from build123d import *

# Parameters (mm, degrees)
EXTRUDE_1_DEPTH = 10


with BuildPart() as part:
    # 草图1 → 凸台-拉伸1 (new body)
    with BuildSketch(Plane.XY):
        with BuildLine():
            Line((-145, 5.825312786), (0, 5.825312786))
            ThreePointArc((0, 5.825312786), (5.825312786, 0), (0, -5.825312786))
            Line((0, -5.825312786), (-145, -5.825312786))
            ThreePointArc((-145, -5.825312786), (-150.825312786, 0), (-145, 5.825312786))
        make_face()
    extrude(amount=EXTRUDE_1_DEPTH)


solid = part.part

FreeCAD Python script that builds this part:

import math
import FreeCAD as App
import Part
import Sketcher

V = App.Vector
Q = App.Units.Quantity

doc = App.newDocument("Part")
body = doc.addObject("PartDesign::Body", "Body")

# Sketch on XY plane
sketch1 = body.newObject("Sketcher::SketchObject", "Sketch")
sketch1.AttachmentSupport = (doc.getObject("XY_Plane"), [""])
sketch1.MapMode = "FlatFace"
sketch1.addGeometry(Part.LineSegment(V(0, 6, 0), V(-145, 6, 0)), False)
sketch1.addGeometry(Part.ArcOfCircle(Part.Circle(V(-145, 0, 0), V(0, 0, 1), 6), math.radians(90), math.radians(270)), False)
sketch1.addGeometry(Part.LineSegment(V(-145, -6, 0), V(0, -6, 0)), False)
sketch1.addGeometry(Part.ArcOfCircle(Part.Circle(V(0, 0, 0), V(0, 0, 1), 6), math.radians(-90), math.radians(90)), False)
sketch1.addConstraint(Sketcher.Constraint("Tangent", 0, 2, 1, 1))
sketch1.addConstraint(Sketcher.Constraint("Tangent", 1, 2, 2, 1))
sketch1.addConstraint(Sketcher.Constraint("Tangent", 2, 2, 3, 1))
sketch1.addConstraint(Sketcher.Constraint("Tangent", 3, 2, 0, 1))
sketch1.addConstraint(Sketcher.Constraint("Horizontal", 0))
sketch1.addConstraint(Sketcher.Constraint("Horizontal", 2))
sketch1.addConstraint(Sketcher.Constraint("Coincident", 3, 3, -1, 1))
sketch1.addConstraint(Sketcher.Constraint("DistanceX", 0, 2, 0, 1, Q("145 mm")))
sketch1.addConstraint(Sketcher.Constraint("Radius", 1, Q("5.825313 mm")))
pad1 = body.newObject("PartDesign::Pad", "Pad")
pad1.Profile = sketch1
pad1.Length = 10

doc.recompute()
